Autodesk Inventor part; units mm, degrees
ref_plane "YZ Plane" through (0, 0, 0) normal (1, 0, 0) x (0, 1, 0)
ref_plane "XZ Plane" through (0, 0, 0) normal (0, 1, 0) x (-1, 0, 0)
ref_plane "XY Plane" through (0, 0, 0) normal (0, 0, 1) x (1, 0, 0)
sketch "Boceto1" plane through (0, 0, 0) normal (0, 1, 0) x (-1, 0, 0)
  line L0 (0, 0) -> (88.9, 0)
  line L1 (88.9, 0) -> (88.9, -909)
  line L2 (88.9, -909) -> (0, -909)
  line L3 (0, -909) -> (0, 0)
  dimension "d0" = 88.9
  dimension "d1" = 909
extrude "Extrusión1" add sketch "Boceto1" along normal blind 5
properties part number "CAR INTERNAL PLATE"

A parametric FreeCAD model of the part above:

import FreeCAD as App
import Part
import Sketcher
from FreeCAD import Vector


def add_polygon(sketch, points):
    """Adds a closed chain of lines whose ends are joined by coincident constraints."""
    first, n = sketch.GeometryCount, len(points)
    for a, b in zip(points, points[1:] + points[:1]):
        sketch.addGeometry(Part.LineSegment(App.Vector(*a, 0), App.Vector(*b, 0)), False)
    for i in range(n):
        sketch.addConstraint(Sketcher.Constraint("Coincident", first + i, 2, first + (i + 1) % n, 1))

doc = App.newDocument("Part")
body = doc.addObject("PartDesign::Body", "Body")

sketch1 = doc.addObject("Sketcher::SketchObject", "Sketch")
body.addObject(sketch1)
sketch1.AttachmentSupport = (doc.XZ_Plane, [""])
sketch1.MapMode = "FlatFace"
add_polygon(sketch1, [(-89, 0), (0, 0), (0, -909), (-89, -909)])
sketch1.addConstraint([
    Sketcher.Constraint("Horizontal", 0),
    Sketcher.Constraint("Vertical", 1),
    Sketcher.Constraint("Horizontal", 2),
    Sketcher.Constraint("Vertical", 3),
    Sketcher.Constraint("Coincident", 0, 2, -1, 1),
    Sketcher.Constraint("DistanceY", 1, 2, 1, 1, 909.0),
    Sketcher.Constraint("DistanceX", 0, 1, 0, 2, 88.9),
])
pad1 = doc.addObject("PartDesign::Pad", "Pad")
body.addObject(pad1)
pad1.Profile = sketch1
pad1.Length = 5
pad1.Reversed = True

doc.recompute()
